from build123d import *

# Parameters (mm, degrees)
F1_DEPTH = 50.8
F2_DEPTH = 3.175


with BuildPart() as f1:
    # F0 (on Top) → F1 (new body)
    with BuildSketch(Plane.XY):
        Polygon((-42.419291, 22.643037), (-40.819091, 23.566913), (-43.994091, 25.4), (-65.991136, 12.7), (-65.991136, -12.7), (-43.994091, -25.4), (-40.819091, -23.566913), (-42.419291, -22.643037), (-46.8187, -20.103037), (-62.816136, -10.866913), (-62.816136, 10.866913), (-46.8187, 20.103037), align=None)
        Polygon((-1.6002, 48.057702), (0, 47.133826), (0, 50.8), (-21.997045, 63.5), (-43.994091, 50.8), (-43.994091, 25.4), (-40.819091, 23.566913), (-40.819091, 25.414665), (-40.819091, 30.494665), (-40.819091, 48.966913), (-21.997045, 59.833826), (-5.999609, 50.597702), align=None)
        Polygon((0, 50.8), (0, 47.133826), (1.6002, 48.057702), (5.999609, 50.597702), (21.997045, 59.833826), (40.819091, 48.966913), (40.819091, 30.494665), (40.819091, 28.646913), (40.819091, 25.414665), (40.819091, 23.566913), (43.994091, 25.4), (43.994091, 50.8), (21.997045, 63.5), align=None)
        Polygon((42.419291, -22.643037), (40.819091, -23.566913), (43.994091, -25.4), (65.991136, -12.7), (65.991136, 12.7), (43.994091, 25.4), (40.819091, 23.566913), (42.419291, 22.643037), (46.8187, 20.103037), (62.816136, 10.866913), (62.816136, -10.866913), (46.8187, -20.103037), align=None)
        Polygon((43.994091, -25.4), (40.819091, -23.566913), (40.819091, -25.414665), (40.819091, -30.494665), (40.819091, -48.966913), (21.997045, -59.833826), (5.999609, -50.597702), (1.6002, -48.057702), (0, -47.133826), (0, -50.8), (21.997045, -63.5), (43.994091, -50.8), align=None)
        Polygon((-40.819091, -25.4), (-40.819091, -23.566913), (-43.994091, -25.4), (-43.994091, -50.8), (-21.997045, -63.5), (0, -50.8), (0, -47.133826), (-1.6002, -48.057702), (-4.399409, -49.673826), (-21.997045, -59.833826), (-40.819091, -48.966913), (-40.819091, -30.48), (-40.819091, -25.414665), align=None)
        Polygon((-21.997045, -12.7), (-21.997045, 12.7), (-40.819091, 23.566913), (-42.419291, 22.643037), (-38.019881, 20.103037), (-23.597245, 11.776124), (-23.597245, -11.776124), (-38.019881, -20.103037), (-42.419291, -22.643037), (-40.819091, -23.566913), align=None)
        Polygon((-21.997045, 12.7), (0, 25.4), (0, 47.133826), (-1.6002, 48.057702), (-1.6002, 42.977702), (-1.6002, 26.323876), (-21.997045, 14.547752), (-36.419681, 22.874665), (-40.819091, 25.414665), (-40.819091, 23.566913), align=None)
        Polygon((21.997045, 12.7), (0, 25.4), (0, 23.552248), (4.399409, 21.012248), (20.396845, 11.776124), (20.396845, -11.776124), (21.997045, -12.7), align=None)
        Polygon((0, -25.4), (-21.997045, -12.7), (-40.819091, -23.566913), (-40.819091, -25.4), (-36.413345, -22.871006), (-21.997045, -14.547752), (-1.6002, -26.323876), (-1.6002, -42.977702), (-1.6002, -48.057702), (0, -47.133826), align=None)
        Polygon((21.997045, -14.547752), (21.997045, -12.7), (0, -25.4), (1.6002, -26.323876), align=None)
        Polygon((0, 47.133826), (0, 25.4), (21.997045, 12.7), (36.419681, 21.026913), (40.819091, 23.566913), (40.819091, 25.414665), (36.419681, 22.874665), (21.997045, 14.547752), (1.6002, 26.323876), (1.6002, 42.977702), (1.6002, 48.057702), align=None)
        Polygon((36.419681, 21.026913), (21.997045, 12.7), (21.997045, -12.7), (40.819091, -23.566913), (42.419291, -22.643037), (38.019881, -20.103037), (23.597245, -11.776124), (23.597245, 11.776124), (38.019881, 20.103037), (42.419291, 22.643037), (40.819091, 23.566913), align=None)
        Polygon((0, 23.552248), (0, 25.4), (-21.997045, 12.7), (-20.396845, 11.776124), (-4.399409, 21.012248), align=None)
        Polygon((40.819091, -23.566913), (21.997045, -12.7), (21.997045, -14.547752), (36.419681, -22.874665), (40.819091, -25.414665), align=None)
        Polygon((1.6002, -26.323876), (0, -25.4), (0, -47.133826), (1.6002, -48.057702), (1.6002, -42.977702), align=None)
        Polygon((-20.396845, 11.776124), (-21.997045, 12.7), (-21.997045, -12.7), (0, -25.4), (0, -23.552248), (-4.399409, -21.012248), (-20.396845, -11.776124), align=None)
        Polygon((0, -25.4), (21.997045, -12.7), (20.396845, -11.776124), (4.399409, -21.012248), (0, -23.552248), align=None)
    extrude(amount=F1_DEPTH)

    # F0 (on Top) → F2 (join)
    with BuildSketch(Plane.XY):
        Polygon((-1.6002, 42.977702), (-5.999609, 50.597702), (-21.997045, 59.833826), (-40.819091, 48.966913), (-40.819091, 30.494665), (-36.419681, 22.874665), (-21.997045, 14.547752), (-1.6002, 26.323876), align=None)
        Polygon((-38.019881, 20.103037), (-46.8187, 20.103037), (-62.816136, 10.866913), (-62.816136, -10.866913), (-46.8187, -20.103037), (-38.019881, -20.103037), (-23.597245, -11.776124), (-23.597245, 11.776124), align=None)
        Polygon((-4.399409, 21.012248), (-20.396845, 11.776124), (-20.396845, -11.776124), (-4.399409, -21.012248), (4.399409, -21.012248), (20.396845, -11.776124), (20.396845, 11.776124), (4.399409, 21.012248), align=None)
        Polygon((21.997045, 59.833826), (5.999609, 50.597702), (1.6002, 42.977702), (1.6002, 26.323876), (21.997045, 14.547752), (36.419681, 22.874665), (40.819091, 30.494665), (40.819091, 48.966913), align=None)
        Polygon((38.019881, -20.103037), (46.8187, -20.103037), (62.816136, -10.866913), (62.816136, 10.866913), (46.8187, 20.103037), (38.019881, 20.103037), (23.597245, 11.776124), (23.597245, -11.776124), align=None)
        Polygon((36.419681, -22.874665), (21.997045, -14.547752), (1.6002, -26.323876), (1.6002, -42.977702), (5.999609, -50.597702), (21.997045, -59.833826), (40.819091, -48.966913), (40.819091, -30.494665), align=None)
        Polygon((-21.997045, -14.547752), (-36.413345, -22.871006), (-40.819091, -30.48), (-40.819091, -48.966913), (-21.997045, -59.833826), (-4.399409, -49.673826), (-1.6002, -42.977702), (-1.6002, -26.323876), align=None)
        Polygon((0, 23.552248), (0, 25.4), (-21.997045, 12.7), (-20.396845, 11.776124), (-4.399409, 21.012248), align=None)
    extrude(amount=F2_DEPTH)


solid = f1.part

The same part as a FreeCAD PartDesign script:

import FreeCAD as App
import Part
import Sketcher
Q = App.Units.Quantity


def add_polygon(sketch, points):
    """Adds a closed chain of lines whose ends are joined by coincident constraints."""
    first, n = sketch.GeometryCount, len(points)
    for a, b in zip(points, points[1:] + points[:1]):
        sketch.addGeometry(Part.LineSegment(App.Vector(*a, 0), App.Vector(*b, 0)), False)
    for i in range(n):
        sketch.addConstraint(Sketcher.Constraint("Coincident", first + i, 2, first + (i + 1) % n, 1))

doc = App.newDocument("Part")
body = doc.addObject("PartDesign::Body", "Body")

# Sketch on XY plane
sketch1 = body.newObject("Sketcher::SketchObject", "Sketch")
sketch1.AttachmentSupport = (doc.getObject("XY_Plane"), [""])
sketch1.MapMode = "FlatFace"
add_polygon(sketch1, [(0, -50.8), (21.997045, -63.5), (43.994091, -50.8), (43.994091, -25.4), (65.991136, -12.7), (65.991136, 12.7), (43.994091, 25.4), (43.994091, 50.8), (21.997045, 63.5), (0, 50.8), (-21.997045, 63.5), (-43.994091, 50.8), (-43.994091, 25.4), (-65.991136, 12.7), (-65.991136, -12.7), (-43.994091, -25.4), (-43.994091, -50.8), (-21.997045, -63.5)])  # lines 0-17
add_polygon(sketch1, [(-1.6002, -48.057702), (-4.399409, -49.673826), (-21.997045, -59.833826), (-40.819091, -48.966913), (-40.819091, -25.4), (-36.413345, -22.871006), (-21.997045, -14.547752), (-1.6002, -26.323876)])  # lines 18-25
add_polygon(sketch1, [(0, -23.552248), (-4.399409, -21.012248), (-20.396845, -11.776124), (-20.396845, 11.776124), (-4.399409, 21.012248), (0, 23.552248), (4.399409, 21.012248), (20.396845, 11.776124), (20.396845, -11.776124), (4.399409, -21.012248)])  # lines 26-35
add_polygon(sketch1, [(5.999609, -50.597702), (1.6002, -48.057702), (1.6002, -26.323876), (21.997045, -14.547752), (36.419681, -22.874665), (40.819091, -25.414665), (40.819091, -48.966913), (21.997045, -59.833826)])  # lines 36-43
add_polygon(sketch1, [(-42.419291, -22.643037), (-46.8187, -20.103037), (-62.816136, -10.866913), (-62.816136, 10.866913), (-46.8187, 20.103037), (-42.419291, 22.643037), (-38.019881, 20.103037), (-23.597245, 11.776124), (-23.597245, -11.776124), (-38.019881, -20.103037)])  # lines 44-53
add_polygon(sketch1, [(-40.819091, 25.414665), (-40.819091, 48.966913), (-21.997045, 59.833826), (-5.999609, 50.597702), (-1.6002, 48.057702), (-1.6002, 26.323876), (-21.997045, 14.547752), (-36.419681, 22.874665)])  # lines 54-61
add_polygon(sketch1, [(42.419291, 22.643037), (46.8187, 20.103037), (62.816136, 10.866913), (62.816136, -10.866913), (46.8187, -20.103037), (42.419291, -22.643037), (38.019881, -20.103037), (23.597245, -11.776124), (23.597245, 11.776124), (38.019881, 20.103037)])  # lines 62-71
add_polygon(sketch1, [(1.6002, 48.057702), (5.999609, 50.597702), (21.997045, 59.833826), (40.819091, 48.966913), (40.819091, 25.414665), (36.419681, 22.874665), (21.997045, 14.547752), (1.6002, 26.323876)])  # lines 72-79
sketch1.addConstraint(Sketcher.Constraint("Vertical", 2))
sketch1.addConstraint(Sketcher.Constraint("Vertical", 4))
sketch1.addConstraint(Sketcher.Constraint("Vertical", 6))
sketch1.addConstraint(Sketcher.Constraint("Vertical", 11))
sketch1.addConstraint(Sketcher.Constraint("Vertical", 13))
sketch1.addConstraint(Sketcher.Constraint("Vertical", 15))
sketch1.addConstraint(Sketcher.Constraint("Vertical", 21))
sketch1.addConstraint(Sketcher.Constraint("Vertical", 25))
sketch1.addConstraint(Sketcher.Constraint("Vertical", 28))
sketch1.addConstraint(Sketcher.Constraint("Vertical", 33))
sketch1.addConstraint(Sketcher.Constraint("Vertical", 37))
sketch1.addConstraint(Sketcher.Constraint("Vertical", 41))
sketch1.addConstraint(Sketcher.Constraint("Vertical", 46))
sketch1.addConstraint(Sketcher.Constraint("Vertical", 51))
sketch1.addConstraint(Sketcher.Constraint("Vertical", 54))
sketch1.addConstraint(Sketcher.Constraint("Vertical", 58))
sketch1.addConstraint(Sketcher.Constraint("Vertical", 64))
sketch1.addConstraint(Sketcher.Constraint("Vertical", 69))
sketch1.addConstraint(Sketcher.Constraint("Vertical", 75))
sketch1.addConstraint(Sketcher.Constraint("Vertical", 79))
sketch1.addConstraint(Sketcher.Constraint("Symmetric", 0, 2, 9, 2, -1, 1))
sketch1.addConstraint(Sketcher.Constraint("Symmetric", 1, 2, 10, 2, -1, 1))
sketch1.addConstraint(Sketcher.Constraint("Symmetric", 3, 2, 12, 2, -1, 1))
sketch1.addConstraint(Sketcher.Constraint("Symmetric", 5, 2, 14, 2, -1, 1))
sketch1.addConstraint(Sketcher.Constraint("Symmetric", 7, 2, 16, 2, -1, 1))
sketch1.addConstraint(Sketcher.Constraint("Symmetric", 8, 2, 17, 2, -1, 1))
sketch1.addConstraint(Sketcher.Constraint("Symmetric", 26, 2, 31, 2, -1, 1))
sketch1.addConstraint(Sketcher.Constraint("Symmetric", 27, 2, 32, 2, -1, 1))
sketch1.addConstraint(Sketcher.Constraint("Symmetric", 29, 2, 34, 2, -1, 1))
sketch1.addConstraint(Sketcher.Constraint("Symmetric", 30, 2, 35, 2, -1, 1))
sketch1.addConstraint(Sketcher.Constraint("Symmetric", 41, 2, 54, 2, -1, 1))
sketch1.addConstraint(Sketcher.Constraint("Symmetric", 42, 2, 55, 2, -1, 1))
sketch1.addConstraint(Sketcher.Constraint("Symmetric", 43, 2, 56, 2, -1, 1))
sketch1.addConstraint(Sketcher.Constraint("Symmetric", 36, 2, 57, 2, -1, 1))
sketch1.addConstraint(Sketcher.Constraint("Symmetric", 38, 2, 59, 2, -1, 1))
sketch1.addConstraint(Sketcher.Constraint("Symmetric", 39, 2, 60, 2, -1, 1))
sketch1.addConstraint(Sketcher.Constraint("Symmetric", 44, 2, 62, 2, -1, 1))
sketch1.addConstraint(Sketcher.Constraint("Symmetric", 45, 2, 63, 2, -1, 1))
sketch1.addConstraint(Sketcher.Constraint("Symmetric", 47, 2, 65, 2, -1, 1))
sketch1.addConstraint(Sketcher.Constraint("Symmetric", 48, 2, 66, 2, -1, 1))
sketch1.addConstraint(Sketcher.Constraint("Symmetric", 49, 2, 67, 2, -1, 1))
sketch1.addConstraint(Sketcher.Constraint("Symmetric", 50, 2, 68, 2, -1, 1))
sketch1.addConstraint(Sketcher.Constraint("Symmetric", 52, 2, 70, 2, -1, 1))
sketch1.addConstraint(Sketcher.Constraint("Symmetric", 53, 2, 71, 2, -1, 1))
sketch1.addConstraint(Sketcher.Constraint("Symmetric", 19, 2, 73, 2, -1, 1))
sketch1.addConstraint(Sketcher.Constraint("Symmetric", 20, 2, 74, 2, -1, 1))
sketch1.addConstraint(Sketcher.Constraint("Symmetric", 23, 2, 77, 2, -1, 1))
sketch1.addConstraint(Sketcher.Constraint("Symmetric", 24, 2, 78, 2, -1, 1))
sketch1.addConstraint(Sketcher.Constraint("Symmetric", 7, 2, 9, 2, -2))
sketch1.addConstraint(Sketcher.Constraint("Symmetric", 6, 2, 10, 2, -2))
sketch1.addConstraint(Sketcher.Constraint("Symmetric", 29, 2, 31, 2, -2))
sketch1.addConstraint(Sketcher.Constraint("Symmetric", 25, 2, 36, 2, -2))
sketch1.addConstraint(Sketcher.Constraint("Symmetric", 23, 2, 38, 2, -2))
sketch1.addConstraint(Sketcher.Constraint("Symmetric", 20, 2, 41, 2, -2))
sketch1.addConstraint(Sketcher.Constraint("Symmetric", 19, 2, 42, 2, -2))
sketch1.addConstraint(Sketcher.Constraint("Symmetric", 47, 2, 62, 2, -2))
sketch1.addConstraint(Sketcher.Constraint("Symmetric", 53, 2, 66, 2, -2))
sketch1.addConstraint(Sketcher.Constraint("Symmetric", 52, 2, 67, 2, -2))
sketch1.addConstraint(Sketcher.Constraint("Symmetric", 56, 2, 72, 2, -2))
sketch1.addConstraint(Sketcher.Constraint("Symmetric", 60, 2, 76, 2, -2))
sketch1.addConstraint(Sketcher.Constraint("PointOnObject", 8, 2, -2))
sketch1.addConstraint(Sketcher.Constraint("PointOnObject", 30, 2, -2))
sketch1.addConstraint(Sketcher.Constraint("Parallel", 1, 3))
sketch1.addConstraint(Sketcher.Constraint("Parallel", 0, 5))
sketch1.addConstraint(Sketcher.Constraint("Parallel", 5, 7))
sketch1.addConstraint(Sketcher.Constraint("Parallel", 10, 12))
sketch1.addConstraint(Sketcher.Constraint("Parallel", 9, 14))
sketch1.addConstraint(Sketcher.Constraint("Parallel", 14, 16))
sketch1.addConstraint(Sketcher.Constraint("Parallel", 17, 18))
sketch1.addConstraint(Sketcher.Constraint("Parallel", 18, 19))
sketch1.addConstraint(Sketcher.Constraint("Parallel", 16, 20))
sketch1.addConstraint(Sketcher.Constraint("Parallel", 19, 23))
sketch1.addConstraint(Sketcher.Constraint("Parallel", 20, 24))
sketch1.addConstraint(Sketcher.Constraint("Parallel", 24, 26))
sketch1.addConstraint(Sketcher.Constraint("Parallel", 26, 27))
sketch1.addConstraint(Sketcher.Constraint("Parallel", 23, 29))
sketch1.addConstraint(Sketcher.Constraint("Parallel", 30, 34))
sketch1.addConstraint(Sketcher.Constraint("Parallel", 32, 36))
sketch1.addConstraint(Sketcher.Constraint("Parallel", 35, 38))
sketch1.addConstraint(Sketcher.Constraint("Parallel", 36, 39))
sketch1.addConstraint(Sketcher.Constraint("Parallel", 39, 40))
sketch1.addConstraint(Sketcher.Constraint("Parallel", 43, 44))
sketch1.addConstraint(Sketcher.Constraint("Parallel", 44, 45))
sketch1.addConstraint(Sketcher.Constraint("Parallel", 42, 47))
sketch1.addConstraint(Sketcher.Constraint("Parallel", 45, 49))
sketch1.addConstraint(Sketcher.Constraint("Parallel", 49, 50))
sketch1.addConstraint(Sketcher.Constraint("Parallel", 48, 52))
sketch1.addConstraint(Sketcher.Constraint("Parallel", 55, 59))
sketch1.addConstraint(Sketcher.Constraint("Parallel", 60, 61))
sketch1.addConstraint(Sketcher.Constraint("Parallel", 59, 65))
sketch1.addConstraint(Sketcher.Constraint("Parallel", 66, 70))
sketch1.addConstraint(Sketcher.Constraint("Parallel", 71, 72))
sketch1.addConstraint(Sketcher.Constraint("Parallel", 73, 76))
sketch1.addConstraint(Sketcher.Constraint("Horizontal", 6, 2, 8, 2))
sketch1.addConstraint(Sketcher.Constraint("Horizontal", 5, 2, 11, 2))
sketch1.addConstraint(Sketcher.Constraint("Horizontal", 14, 2, 21, 2))
sketch1.addConstraint(Sketcher.Constraint("Horizontal", 47, 2, 49, 2))
sketch1.addConstraint(Sketcher.Constraint("Horizontal", 32, 2, 50, 2))
sketch1.addConstraint(Sketcher.Constraint("Vertical", 16, 2, 19, 2))
sketch1.addConstraint(Sketcher.Constraint("Vertical", 19, 2, 23, 2))
sketch1.addConstraint(Sketcher.Constraint("Vertical", 18, 2, 26, 2))
sketch1.addConstraint(Sketcher.Constraint("Equal", 2, 4))
sketch1.addConstraint(Sketcher.Constraint("Equal", 33, 41))
sketch1.addConstraint(Sketcher.Constraint("Equal", 37, 46))
sketch1.addConstraint(Sketcher.Constraint("Equal", 1, 3))
sketch1.addConstraint(Sketcher.Constraint("Equal", 22, 26))
sketch1.addConstraint(Sketcher.Constraint("Equal", 35, 36))
sketch1.addConstraint(Sketcher.Constraint("Equal", 36, 40))
sketch1.addConstraint(Sketcher.Constraint("Equal", 34, 43))
sketch1.addConstraint(Sketcher.Constraint("Equal", 40, 44))
sketch1.addConstraint(Sketcher.Constraint("Equal", 43, 45))
sketch1.addConstraint(Sketcher.Constraint("DistanceY", 2, 1, 2, 2, Q("1 in")))
sketch1.addConstraint(Sketcher.Constraint("Distance", 0, Q("1 in")))
sketch1.addConstraint(Sketcher.Constraint("DistanceY", 1, 2, -1, 1, Q("2 in")))
sketch1.addConstraint(Sketcher.Constraint("Distance", 19, Q("0.8 in")))
sketch1.addConstraint(Sketcher.Constraint("DistanceX", 24, 2, -1, 1, Q("0.063 in")))
sketch1.addConstraint(Sketcher.Constraint("DistanceY", 43, 2, -1, 1, Q("50.597702 mm")))
sketch1.addConstraint(Sketcher.Constraint("DistanceX", 44, 2, -1, 1, Q("46.8187 mm")))
sketch1.addConstraint(Sketcher.Constraint("Distance", 23, Q("16.646509 mm")))
sketch1.addConstraint(Sketcher.Constraint("DistanceY", 21, 1, 21, 2, Q("23.566913 mm")))
pad1 = body.newObject("PartDesign::Pad", "Pad")
pad1.Profile = sketch1
pad1.Length = Q("2 in")

# Sketch on XY plane
sketch2 = body.newObject("Sketcher::SketchObject", "Sketch001")
sketch2.AttachmentSupport = (doc.getObject("XY_Plane"), [""])
sketch2.MapMode = "FlatFace"
add_polygon(sketch2, [(-1.6002, 42.977702), (-5.999609, 50.597702), (-21.997045, 59.833826), (-40.819091, 48.966913), (-40.819091, 30.494665), (-36.419681, 22.874665), (-21.997045, 14.547752), (-1.6002, 26.323876)])  # lines 0-7
add_polygon(sketch2, [(-38.019881, 20.103037), (-46.8187, 20.103037), (-62.816136, 10.866913), (-62.816136, -10.866913), (-46.8187, -20.103037), (-38.019881, -20.103037), (-23.597245, -11.776124), (-23.597245, 11.776124)])  # lines 8-15
add_polygon(sketch2, [(-20.396845, 11.776124), (-20.396845, -11.776124), (-4.399409, -21.012248), (4.399409, -21.012248), (20.396845, -11.776124), (20.396845, 11.776124), (4.399409, 21.012248), (-4.399409, 21.012248), (0, 23.552248), (0, 25.4), (-21.997045, 12.7)])  # lines 16-26
add_polygon(sketch2, [(21.997045, 59.833826), (5.999609, 50.597702), (1.6002, 42.977702), (1.6002, 26.323876), (21.997045, 14.547752), (36.419681, 22.874665), (40.819091, 30.494665), (40.819091, 48.966913)])  # lines 27-34
add_polygon(sketch2, [(38.019881, -20.103037), (46.8187, -20.103037), (62.816136, -10.866913), (62.816136, 10.866913), (46.8187, 20.103037), (38.019881, 20.103037), (23.597245, 11.776124), (23.597245, -11.776124)])  # lines 35-42
add_polygon(sketch2, [(36.419681, -22.874665), (21.997045, -14.547752), (1.6002, -26.323876), (1.6002, -42.977702), (5.999609, -50.597702), (21.997045, -59.833826), (40.819091, -48.966913), (40.819091, -30.494665)])  # lines 43-50
add_polygon(sketch2, [(-21.997045, -14.547752), (-36.413345, -22.871006), (-40.819091, -30.48), (-40.819091, -48.966913), (-21.997045, -59.833826), (-4.399409, -49.673826), (-1.6002, -42.977702), (-1.6002, -26.323876)])  # lines 51-58
sketch2.addConstraint(Sketcher.Constraint("Vertical", 3))
sketch2.addConstraint(Sketcher.Constraint("Vertical", 7))
sketch2.addConstraint(Sketcher.Constraint("Horizontal", 8))
sketch2.addConstraint(Sketcher.Constraint("Vertical", 10))
sketch2.addConstraint(Sketcher.Constraint("Horizontal", 12))
sketch2.addConstraint(Sketcher.Constraint("Vertical", 14))
sketch2.addConstraint(Sketcher.Constraint("Vertical", 16))
sketch2.addConstraint(Sketcher.Constraint("Horizontal", 18))
sketch2.addConstraint(Sketcher.Constraint("Vertical", 20))
sketch2.addConstraint(Sketcher.Constraint("Horizontal", 22))
sketch2.addConstraint(Sketcher.Constraint("Vertical", 24))
sketch2.addConstraint(Sketcher.Constraint("Vertical", 29))
sketch2.addConstraint(Sketcher.Constraint("Vertical", 33))
sketch2.addConstraint(Sketcher.Constraint("Horizontal", 35))
sketch2.addConstraint(Sketcher.Constraint("Vertical", 37))
sketch2.addConstraint(Sketcher.Constraint("Horizontal", 39))
sketch2.addConstraint(Sketcher.Constraint("Vertical", 41))
sketch2.addConstraint(Sketcher.Constraint("Vertical", 45))
sketch2.addConstraint(Sketcher.Constraint("Vertical", 49))
sketch2.addConstraint(Sketcher.Constraint("Vertical", 53))
sketch2.addConstraint(Sketcher.Constraint("Vertical", 57))
sketch2.addConstraint(Sketcher.Constraint("Symmetric", 16, 2, 20, 2, -1, 1))
sketch2.addConstraint(Sketcher.Constraint("Symmetric", 17, 2, 21, 2, -1, 1))
sketch2.addConstraint(Sketcher.Constraint("Symmetric", 8, 2, 35, 2, -1, 1))
sketch2.addConstraint(Sketcher.Constraint("Symmetric", 9, 2, 36, 2, -1, 1))
sketch2.addConstraint(Sketcher.Constraint("Symmetric", 11, 2, 38, 2, -1, 1))
sketch2.addConstraint(Sketcher.Constraint("Symmetric", 13, 2, 40, 2, -1, 1))
sketch2.addConstraint(Sketcher.Constraint("Symmetric", 5, 2, 43, 2, -1, 1))
sketch2.addConstraint(Sketcher.Constraint("Symmetric", 6, 2, 44, 2, -1, 1))
sketch2.addConstraint(Sketcher.Constraint("Symmetric", 0, 2, 46, 2, -1, 1))
sketch2.addConstraint(Sketcher.Constraint("Symmetric", 1, 2, 47, 2, -1, 1))
sketch2.addConstraint(Sketcher.Constraint("Symmetric", 2, 2, 48, 2, -1, 1))
sketch2.addConstraint(Sketcher.Constraint("Symmetric", 4, 2, 50, 2, -1, 1))
sketch2.addConstraint(Sketcher.Constraint("Symmetric", 33, 2, 53, 2, -1, 1))
sketch2.addConstraint(Sketcher.Constraint("Symmetric", 34, 2, 54, 2, -1, 1))
sketch2.addConstraint(Sketcher.Constraint("Symmetric", 28, 2, 56, 2, -1, 1))
sketch2.addConstraint(Sketcher.Constraint("Symmetric", 30, 2, 58, 2, -1, 1))
sketch2.addConstraint(Sketcher.Constraint("Symmetric", 0, 2, 27, 2, -2))
sketch2.addConstraint(Sketcher.Constraint("Symmetric", 7, 2, 28, 2, -2))
sketch2.addConstraint(Sketcher.Constraint("Symmetric", 5, 2, 30, 2, -2))
sketch2.addConstraint(Sketcher.Constraint("Symmetric", 4, 2, 31, 2, -2))
sketch2.addConstraint(Sketcher.Constraint("Symmetric", 3, 2, 32, 2, -2))
sketch2.addConstraint(Sketcher.Constraint("Symmetric", 1, 2, 34, 2, -2))
sketch2.addConstraint(Sketcher.Constraint("Symmetric", 11, 2, 35, 2, -2))
sketch2.addConstraint(Sketcher.Constraint("PointOnObject", 23, 2, -2))
sketch2.addConstraint(Sketcher.Constraint("Perpendicular", 0, 2))
sketch2.addConstraint(Sketcher.Constraint("Perpendicular", 2, 4))
sketch2.addConstraint(Sketcher.Constraint("Parallel", 1, 5))
sketch2.addConstraint(Sketcher.Constraint("Perpendicular", 4, 6))
sketch2.addConstraint(Sketcher.Constraint("Parallel", 6, 9))
sketch2.addConstraint(Sketcher.Constraint("Parallel", 5, 11))
sketch2.addConstraint(Sketcher.Constraint("Parallel", 9, 13))
sketch2.addConstraint(Sketcher.Constraint("Parallel", 11, 15))
sketch2.addConstraint(Sketcher.Constraint("Parallel", 15, 17))
sketch2.addConstraint(Sketcher.Constraint("Parallel", 13, 19))
sketch2.addConstraint(Sketcher.Constraint("Parallel", 19, 23))
sketch2.addConstraint(Sketcher.Constraint("Parallel", 23, 25))
sketch2.addConstraint(Sketcher.Constraint("Parallel", 21, 26))
sketch2.addConstraint(Sketcher.Constraint("Parallel", 25, 27))
sketch2.addConstraint(Sketcher.Constraint("Perpendicular", 28, 30))
sketch2.addConstraint(Sketcher.Constraint("Perpendicular", 32, 34))
sketch2.addConstraint(Sketcher.Constraint("Parallel", 34, 38))
sketch2.addConstraint(Sketcher.Constraint("Parallel", 36, 40))
sketch2.addConstraint(Sketcher.Constraint("Parallel", 38, 42))
sketch2.addConstraint(Sketcher.Constraint("Perpendicular", 44, 46))
sketch2.addConstraint(Sketcher.Constraint("Perpendicular", 48, 50))
sketch2.addConstraint(Sketcher.Constraint("Perpendicular", 50, 51))
sketch2.addConstraint(Sketcher.Constraint("Parallel", 51, 55))
sketch2.addConstraint(Sketcher.Constraint("Parallel", 54, 58))
sketch2.addConstraint(Sketcher.Constraint("Horizontal", 13, 2, 16, 2))
sketch2.addConstraint(Sketcher.Constraint("Horizontal", 16, 2, 19, 2))
sketch2.addConstraint(Sketcher.Constraint("Horizontal", 14, 2, 20, 2))
sketch2.addConstraint(Sketcher.Constraint("Horizontal", 20, 2, 26, 2))
sketch2.addConstraint(Sketcher.Constraint("Horizontal", 19, 2, 41, 2))
sketch2.addConstraint(Sketcher.Constraint("Vertical", 1, 2, 5, 2))
sketch2.addConstraint(Sketcher.Constraint("Vertical", 17, 2, 22, 2))
sketch2.addConstraint(Sketcher.Constraint("Vertical", 5, 2, 25, 2))
sketch2.addConstraint(Sketcher.Constraint("Vertical", 22, 2, 55, 2))
sketch2.addConstraint(Sketcher.Constraint("Equal", 12, 18))
sketch2.addConstraint(Sketcher.Constraint("Equal", 0, 4))
sketch2.addConstraint(Sketcher.Constraint("Equal", 1, 9))
sketch2.addConstraint(Sketcher.Constraint("Equal", 5, 13))
sketch2.addConstraint(Sketcher.Constraint("Equal", 11, 17))
sketch2.addConstraint(Sketcher.Constraint("Distance", 25, Q("1 in")))
sketch2.addConstraint(Sketcher.Constraint("DistanceY", -1, 1, 24, 2, Q("1 in")))
sketch2.addConstraint(Sketcher.Constraint("Angle", 0, Q("120 deg")))
sketch2.addConstraint(Sketcher.Constraint("Distance", 23, Q("0.2 in")))
sketch2.addConstraint(Sketcher.Constraint("DistanceY", 52, 2, -1, 1, Q("1.2 in")))
sketch2.addConstraint(Sketcher.Constraint("DistanceY", 4, 2, 3, 2, Q("0.3 in")))
sketch2.addConstraint(Sketcher.Constraint("DistanceY", 9, 2, 2, 2, Q("1.5 in")))
sketch2.addConstraint(Sketcher.Constraint("DistanceY", 17, 2, 5, 2, Q("1.4 in")))
sketch2.addConstraint(Sketcher.Constraint("DistanceX", 6, 2, -1, 1, Q("0.063 in")))
sketch2.addConstraint(Sketcher.Constraint("DistanceX", 13, 2, 5, 2, Q("0.063 in")))
sketch2.addConstraint(Sketcher.Constraint("DistanceY", -1, 1, 0, 2, Q("50.597702 mm")))
sketch2.addConstraint(Sketcher.Constraint("DistanceX", 51, 2, 13, 2, Q("12.8161 mm")))
pad2 = body.newObject("PartDesign::Pad", "Pad001")
pad2.Profile = sketch2
pad2.Length = Q("0.125 in")

doc.recompute()
